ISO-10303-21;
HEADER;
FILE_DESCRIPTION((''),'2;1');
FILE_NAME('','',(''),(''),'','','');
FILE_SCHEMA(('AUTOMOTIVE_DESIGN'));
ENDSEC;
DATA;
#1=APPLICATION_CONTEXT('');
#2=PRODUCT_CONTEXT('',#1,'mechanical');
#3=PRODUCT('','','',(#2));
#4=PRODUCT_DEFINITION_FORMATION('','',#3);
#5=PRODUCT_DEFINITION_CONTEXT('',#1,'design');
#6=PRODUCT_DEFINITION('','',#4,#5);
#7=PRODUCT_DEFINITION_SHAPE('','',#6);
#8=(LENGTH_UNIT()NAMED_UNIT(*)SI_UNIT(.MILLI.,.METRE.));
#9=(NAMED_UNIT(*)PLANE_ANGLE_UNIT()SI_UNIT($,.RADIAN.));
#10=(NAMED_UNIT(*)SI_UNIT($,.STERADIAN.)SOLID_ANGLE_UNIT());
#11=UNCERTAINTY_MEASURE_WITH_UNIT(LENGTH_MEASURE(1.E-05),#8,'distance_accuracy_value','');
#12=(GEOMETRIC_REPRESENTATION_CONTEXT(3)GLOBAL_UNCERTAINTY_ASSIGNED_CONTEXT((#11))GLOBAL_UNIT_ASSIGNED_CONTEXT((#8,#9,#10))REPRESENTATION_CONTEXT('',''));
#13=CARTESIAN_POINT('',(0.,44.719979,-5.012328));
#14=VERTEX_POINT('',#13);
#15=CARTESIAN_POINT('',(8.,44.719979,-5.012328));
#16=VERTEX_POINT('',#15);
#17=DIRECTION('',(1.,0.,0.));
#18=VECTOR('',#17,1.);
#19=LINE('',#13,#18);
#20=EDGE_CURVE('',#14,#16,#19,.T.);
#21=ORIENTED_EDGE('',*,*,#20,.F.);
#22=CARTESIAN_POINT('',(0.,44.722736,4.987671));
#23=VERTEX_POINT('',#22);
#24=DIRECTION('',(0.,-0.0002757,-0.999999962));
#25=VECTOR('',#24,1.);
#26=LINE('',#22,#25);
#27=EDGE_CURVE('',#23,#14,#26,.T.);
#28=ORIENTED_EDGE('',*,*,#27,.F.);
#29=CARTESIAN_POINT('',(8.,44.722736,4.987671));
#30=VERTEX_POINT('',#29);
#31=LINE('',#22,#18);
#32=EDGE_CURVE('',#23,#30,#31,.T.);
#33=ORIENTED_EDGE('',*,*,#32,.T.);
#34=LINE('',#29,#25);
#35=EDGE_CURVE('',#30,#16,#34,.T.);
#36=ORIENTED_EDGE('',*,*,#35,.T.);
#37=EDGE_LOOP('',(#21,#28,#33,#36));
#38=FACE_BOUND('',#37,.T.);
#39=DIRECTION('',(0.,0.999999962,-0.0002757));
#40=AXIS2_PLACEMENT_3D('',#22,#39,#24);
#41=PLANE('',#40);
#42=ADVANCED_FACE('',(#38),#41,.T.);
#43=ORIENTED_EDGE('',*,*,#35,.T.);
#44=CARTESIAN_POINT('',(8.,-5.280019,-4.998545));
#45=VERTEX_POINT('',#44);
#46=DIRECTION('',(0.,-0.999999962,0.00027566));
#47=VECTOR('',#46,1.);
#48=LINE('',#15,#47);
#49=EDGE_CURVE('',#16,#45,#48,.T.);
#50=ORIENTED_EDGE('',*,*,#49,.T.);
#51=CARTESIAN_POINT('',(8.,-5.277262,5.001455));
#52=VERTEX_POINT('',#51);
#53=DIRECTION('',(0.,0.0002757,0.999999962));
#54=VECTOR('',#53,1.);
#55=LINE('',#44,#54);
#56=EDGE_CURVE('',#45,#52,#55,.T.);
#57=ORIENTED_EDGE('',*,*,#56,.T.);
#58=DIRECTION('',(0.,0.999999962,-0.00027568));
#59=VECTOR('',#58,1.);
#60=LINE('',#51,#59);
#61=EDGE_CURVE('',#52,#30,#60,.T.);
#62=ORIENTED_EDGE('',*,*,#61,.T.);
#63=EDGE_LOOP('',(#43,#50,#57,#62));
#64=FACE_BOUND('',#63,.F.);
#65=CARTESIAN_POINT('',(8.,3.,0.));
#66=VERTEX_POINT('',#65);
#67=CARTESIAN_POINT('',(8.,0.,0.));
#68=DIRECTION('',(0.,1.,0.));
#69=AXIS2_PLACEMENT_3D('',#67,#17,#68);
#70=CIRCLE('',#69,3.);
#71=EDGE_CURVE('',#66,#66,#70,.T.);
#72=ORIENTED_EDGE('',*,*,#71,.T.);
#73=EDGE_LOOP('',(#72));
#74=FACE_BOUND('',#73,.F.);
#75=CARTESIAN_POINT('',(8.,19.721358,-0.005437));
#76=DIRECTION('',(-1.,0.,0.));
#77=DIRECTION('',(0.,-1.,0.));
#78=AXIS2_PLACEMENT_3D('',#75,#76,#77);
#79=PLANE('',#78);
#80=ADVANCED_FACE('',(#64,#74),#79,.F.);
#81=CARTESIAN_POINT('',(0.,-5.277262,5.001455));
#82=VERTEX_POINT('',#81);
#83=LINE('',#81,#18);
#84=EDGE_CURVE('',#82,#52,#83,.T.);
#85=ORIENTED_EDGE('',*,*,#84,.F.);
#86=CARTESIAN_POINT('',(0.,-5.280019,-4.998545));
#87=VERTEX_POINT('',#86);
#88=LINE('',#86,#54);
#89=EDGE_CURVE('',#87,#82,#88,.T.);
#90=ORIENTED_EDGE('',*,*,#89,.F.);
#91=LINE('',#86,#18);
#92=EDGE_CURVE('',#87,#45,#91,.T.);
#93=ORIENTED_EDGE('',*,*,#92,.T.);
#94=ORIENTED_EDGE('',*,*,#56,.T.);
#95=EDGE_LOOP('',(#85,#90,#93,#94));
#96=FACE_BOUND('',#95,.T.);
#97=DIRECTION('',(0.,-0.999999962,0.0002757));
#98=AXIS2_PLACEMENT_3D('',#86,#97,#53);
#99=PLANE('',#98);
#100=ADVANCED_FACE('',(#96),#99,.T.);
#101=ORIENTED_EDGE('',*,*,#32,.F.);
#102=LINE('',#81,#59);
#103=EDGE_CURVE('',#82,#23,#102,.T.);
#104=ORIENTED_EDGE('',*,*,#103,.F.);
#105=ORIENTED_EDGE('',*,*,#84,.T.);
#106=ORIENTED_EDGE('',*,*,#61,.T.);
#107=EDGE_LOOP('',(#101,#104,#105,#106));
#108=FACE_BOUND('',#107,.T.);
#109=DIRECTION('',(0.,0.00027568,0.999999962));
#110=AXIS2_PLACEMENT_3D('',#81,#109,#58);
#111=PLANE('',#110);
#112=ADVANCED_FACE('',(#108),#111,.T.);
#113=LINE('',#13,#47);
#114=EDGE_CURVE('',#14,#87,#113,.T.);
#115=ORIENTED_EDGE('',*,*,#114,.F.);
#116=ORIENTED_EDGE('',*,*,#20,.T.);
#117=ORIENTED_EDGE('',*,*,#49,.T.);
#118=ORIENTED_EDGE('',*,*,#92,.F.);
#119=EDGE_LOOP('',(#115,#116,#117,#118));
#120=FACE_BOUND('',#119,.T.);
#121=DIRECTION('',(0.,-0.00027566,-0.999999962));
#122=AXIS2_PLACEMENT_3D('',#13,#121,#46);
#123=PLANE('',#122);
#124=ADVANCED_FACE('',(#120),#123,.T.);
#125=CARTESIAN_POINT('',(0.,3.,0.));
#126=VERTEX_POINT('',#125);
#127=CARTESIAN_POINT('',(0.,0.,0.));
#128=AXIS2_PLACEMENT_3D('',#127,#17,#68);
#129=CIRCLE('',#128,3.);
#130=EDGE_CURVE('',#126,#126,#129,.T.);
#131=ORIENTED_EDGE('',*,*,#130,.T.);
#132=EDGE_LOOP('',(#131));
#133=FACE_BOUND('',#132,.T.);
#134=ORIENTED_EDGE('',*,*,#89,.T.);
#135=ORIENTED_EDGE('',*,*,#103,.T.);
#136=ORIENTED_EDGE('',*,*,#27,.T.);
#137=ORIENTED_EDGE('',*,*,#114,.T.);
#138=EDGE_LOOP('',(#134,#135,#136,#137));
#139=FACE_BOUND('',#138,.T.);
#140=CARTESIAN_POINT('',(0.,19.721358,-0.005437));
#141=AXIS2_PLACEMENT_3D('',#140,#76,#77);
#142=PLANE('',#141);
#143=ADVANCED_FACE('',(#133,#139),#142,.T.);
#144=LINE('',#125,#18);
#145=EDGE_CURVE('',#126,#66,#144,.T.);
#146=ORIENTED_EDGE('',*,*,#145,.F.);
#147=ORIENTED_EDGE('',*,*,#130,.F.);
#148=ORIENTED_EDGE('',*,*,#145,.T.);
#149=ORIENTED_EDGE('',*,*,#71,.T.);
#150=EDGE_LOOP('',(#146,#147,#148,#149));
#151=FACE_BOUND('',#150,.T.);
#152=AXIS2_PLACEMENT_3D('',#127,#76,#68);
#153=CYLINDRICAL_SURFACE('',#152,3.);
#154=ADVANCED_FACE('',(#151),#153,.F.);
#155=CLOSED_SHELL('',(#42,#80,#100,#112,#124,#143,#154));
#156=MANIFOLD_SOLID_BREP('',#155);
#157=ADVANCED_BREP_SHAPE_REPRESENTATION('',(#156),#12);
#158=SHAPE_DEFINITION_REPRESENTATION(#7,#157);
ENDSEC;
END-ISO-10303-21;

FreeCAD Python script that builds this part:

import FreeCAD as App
import Part
import Sketcher

V = App.Vector
Q = App.Units.Quantity

doc = App.newDocument("Part")
body = doc.addObject("PartDesign::Body", "Body")

sketch1 = doc.addObject("Sketcher::SketchObject", "Sketch")
body.addObject(sketch1)
sketch1.AttachmentSupport = (doc.YZ_Plane, [""])
sketch1.MapMode = "FlatFace"
sketch1.addGeometry([
    Part.LineSegment(V(44.7, 5, 0), V(-5.3, 5, 0)),
    Part.LineSegment(V(-5.3, 5, 0), V(-5.3, -5, 0)),
    Part.LineSegment(V(-5.3, -5, 0), V(44.7, -5, 0)),
    Part.LineSegment(V(44.7, -5, 0), V(44.7, 5, 0)),
    Part.Circle(V(0, 0, 0), V(0, 0, 1), 3),
], False)
sketch1.addConstraint([
    Sketcher.Constraint("Coincident", 0, 2, 1, 1),
    Sketcher.Constraint("Coincident", 1, 2, 2, 1),
    Sketcher.Constraint("Coincident", 2, 2, 3, 1),
    Sketcher.Constraint("Coincident", 3, 2, 0, 1),
    Sketcher.Constraint("Coincident", 4, 3, -1, 1),
    Sketcher.Constraint("Perpendicular", 0, 1),
    Sketcher.Constraint("Perpendicular", 1, 2),
    Sketcher.Constraint("Perpendicular", 2, 3),
    Sketcher.Constraint("Diameter", 4, Q("6 mm")),
    Sketcher.Constraint("Distance", 0, Q("50 mm")),
    Sketcher.Constraint("Distance", 1, Q("10 mm")),
    Sketcher.Constraint("DistanceX", 1, 2, -1, 1, Q("5.280019 mm")),
    Sketcher.Constraint("DistanceY", -1, 1, 3, 2, Q("4.987671 mm")),
    Sketcher.Constraint("DistanceX", 0, 2, 2, 2, Q("49.997241 mm")),
])
pad1 = doc.addObject("PartDesign::Pad", "Pad")
body.addObject(pad1)
pad1.Profile = sketch1
pad1.Length = 8

doc.recompute()
